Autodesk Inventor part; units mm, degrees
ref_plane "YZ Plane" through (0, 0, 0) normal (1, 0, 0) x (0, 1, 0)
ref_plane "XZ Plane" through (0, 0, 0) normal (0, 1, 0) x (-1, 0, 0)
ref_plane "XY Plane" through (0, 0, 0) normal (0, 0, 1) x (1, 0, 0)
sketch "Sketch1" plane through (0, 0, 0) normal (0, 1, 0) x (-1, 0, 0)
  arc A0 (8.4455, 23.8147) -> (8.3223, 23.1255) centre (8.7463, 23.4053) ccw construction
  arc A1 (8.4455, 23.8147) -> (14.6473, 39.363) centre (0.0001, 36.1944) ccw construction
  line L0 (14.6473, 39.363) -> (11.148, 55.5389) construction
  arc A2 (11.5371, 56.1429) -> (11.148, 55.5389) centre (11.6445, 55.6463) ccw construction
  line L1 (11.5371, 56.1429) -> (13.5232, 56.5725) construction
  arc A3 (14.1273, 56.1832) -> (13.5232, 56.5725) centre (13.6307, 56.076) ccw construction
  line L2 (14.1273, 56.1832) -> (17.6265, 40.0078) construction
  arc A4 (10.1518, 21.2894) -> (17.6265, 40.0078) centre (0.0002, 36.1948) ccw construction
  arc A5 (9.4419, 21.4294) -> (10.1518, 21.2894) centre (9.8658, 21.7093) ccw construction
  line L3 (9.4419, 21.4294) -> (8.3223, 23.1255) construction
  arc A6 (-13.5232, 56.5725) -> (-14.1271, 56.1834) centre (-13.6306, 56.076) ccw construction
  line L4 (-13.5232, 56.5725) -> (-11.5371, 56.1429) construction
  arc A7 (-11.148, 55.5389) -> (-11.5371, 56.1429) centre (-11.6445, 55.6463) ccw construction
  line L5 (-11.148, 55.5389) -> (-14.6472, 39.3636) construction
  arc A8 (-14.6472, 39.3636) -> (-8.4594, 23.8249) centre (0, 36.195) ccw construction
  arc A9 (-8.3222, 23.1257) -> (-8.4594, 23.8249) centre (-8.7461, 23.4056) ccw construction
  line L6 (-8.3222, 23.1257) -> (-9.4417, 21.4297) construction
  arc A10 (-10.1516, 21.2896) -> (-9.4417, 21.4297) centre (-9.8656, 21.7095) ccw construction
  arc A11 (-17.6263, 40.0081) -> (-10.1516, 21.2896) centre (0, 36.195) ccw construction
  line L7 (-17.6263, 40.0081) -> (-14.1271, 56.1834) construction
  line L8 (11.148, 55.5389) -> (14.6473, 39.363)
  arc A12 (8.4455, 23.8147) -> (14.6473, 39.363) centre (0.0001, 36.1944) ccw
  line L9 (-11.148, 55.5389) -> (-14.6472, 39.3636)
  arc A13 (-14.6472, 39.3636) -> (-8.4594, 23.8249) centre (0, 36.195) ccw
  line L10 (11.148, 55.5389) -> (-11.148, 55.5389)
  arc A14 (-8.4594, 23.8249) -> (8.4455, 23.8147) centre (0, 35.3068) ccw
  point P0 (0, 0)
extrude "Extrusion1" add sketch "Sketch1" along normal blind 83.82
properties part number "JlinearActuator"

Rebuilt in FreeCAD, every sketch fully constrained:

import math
import FreeCAD as App
import Part
import Sketcher
from FreeCAD import Vector
Q = App.Units.Quantity

doc = App.newDocument("Part")
body = doc.addObject("PartDesign::Body", "Body")

# Sketch on XZ plane
sketch1 = body.newObject("Sketcher::SketchObject", "Sketch")
sketch1.AttachmentSupport = (doc.getObject("XZ_Plane"), [""])
sketch1.MapMode = "FlatFace"
sketch1.addGeometry(Part.LineSegment(Vector(-14.6473, 39.363, 0), Vector(-11.148, 55.5389, 0)), False)
sketch1.addGeometry(Part.LineSegment(Vector(-11.148, 55.5389, 0), Vector(11.148, 55.5389, 0)), False)
sketch1.addGeometry(Part.LineSegment(Vector(11.148, 55.5389, 0), Vector(14.6472, 39.3636, 0)), False)
sketch1.addGeometry(Part.ArcOfCircle(Part.Circle(Vector(0, 36.195, 0), Vector(0, 0, 1), 14.98601), math.radians(-55.633389), math.radians(12.206589)), False)
sketch1.addGeometry(Part.ArcOfCircle(Part.Circle(Vector(0, 35.3068, 0), Vector(0, 0, 1), 14.261679), math.radians(-126.312023), math.radians(-53.618712)), False)
sketch1.addGeometry(Part.ArcOfCircle(Part.Circle(Vector(-0.0001, 36.1944, 0), Vector(0, 0, 1), 14.986052), math.radians(167.793411), math.radians(235.698291)), False)
sketch1.addConstraint(Sketcher.Constraint("Coincident", 0, 2, 1, 1))
sketch1.addConstraint(Sketcher.Constraint("Coincident", 1, 2, 2, 1))
sketch1.addConstraint(Sketcher.Constraint("Tangent", 2, 2, 3, 2))
sketch1.addConstraint(Sketcher.Constraint("Coincident", 3, 1, 4, 2))
sketch1.addConstraint(Sketcher.Constraint("Coincident", 4, 1, 5, 2))
sketch1.addConstraint(Sketcher.Constraint("Tangent", 5, 1, 0, 1))
sketch1.addConstraint(Sketcher.Constraint("Horizontal", 1))
sketch1.addConstraint(Sketcher.Constraint("Equal", 3, 5))
sketch1.addConstraint(Sketcher.Constraint("PointOnObject", 3, 3, -2))
sketch1.addConstraint(Sketcher.Constraint("PointOnObject", 4, 3, -2))
sketch1.addConstraint(Sketcher.Constraint("PointOnObject", 5, 3, -2))
sketch1.addConstraint(Sketcher.Constraint("Radius", 3, Q("0.59 in")))
sketch1.addConstraint(Sketcher.Constraint("Radius", 4, 14.2617))
sketch1.addConstraint(Sketcher.Constraint("DistanceX", 1, 1, 1, 2, Q("0.8778 in")))
sketch1.addConstraint(Sketcher.Constraint("DistanceY", -1, 1, 3, 3, Q("1.425 in")))
sketch1.addConstraint(Sketcher.Constraint("DistanceY", -1, 1, 3, 1, Q("0.938 in")))
sketch1.addConstraint(Sketcher.Constraint("DistanceX", 0, 2, -1, 1, Q("0.4389 in")))
sketch1.addConstraint(Sketcher.Constraint("DistanceX", 4, 1, -1, 1, Q("0.3325 in")))
sketch1.addConstraint(Sketcher.Constraint("DistanceY", 5, 3, 0, 2, Q("0.7616 in")))
pad1 = body.newObject("PartDesign::Pad", "Pad")
pad1.Profile = sketch1
pad1.Length = Q("3.3 in")
pad1.Reversed = True

doc.recompute()
